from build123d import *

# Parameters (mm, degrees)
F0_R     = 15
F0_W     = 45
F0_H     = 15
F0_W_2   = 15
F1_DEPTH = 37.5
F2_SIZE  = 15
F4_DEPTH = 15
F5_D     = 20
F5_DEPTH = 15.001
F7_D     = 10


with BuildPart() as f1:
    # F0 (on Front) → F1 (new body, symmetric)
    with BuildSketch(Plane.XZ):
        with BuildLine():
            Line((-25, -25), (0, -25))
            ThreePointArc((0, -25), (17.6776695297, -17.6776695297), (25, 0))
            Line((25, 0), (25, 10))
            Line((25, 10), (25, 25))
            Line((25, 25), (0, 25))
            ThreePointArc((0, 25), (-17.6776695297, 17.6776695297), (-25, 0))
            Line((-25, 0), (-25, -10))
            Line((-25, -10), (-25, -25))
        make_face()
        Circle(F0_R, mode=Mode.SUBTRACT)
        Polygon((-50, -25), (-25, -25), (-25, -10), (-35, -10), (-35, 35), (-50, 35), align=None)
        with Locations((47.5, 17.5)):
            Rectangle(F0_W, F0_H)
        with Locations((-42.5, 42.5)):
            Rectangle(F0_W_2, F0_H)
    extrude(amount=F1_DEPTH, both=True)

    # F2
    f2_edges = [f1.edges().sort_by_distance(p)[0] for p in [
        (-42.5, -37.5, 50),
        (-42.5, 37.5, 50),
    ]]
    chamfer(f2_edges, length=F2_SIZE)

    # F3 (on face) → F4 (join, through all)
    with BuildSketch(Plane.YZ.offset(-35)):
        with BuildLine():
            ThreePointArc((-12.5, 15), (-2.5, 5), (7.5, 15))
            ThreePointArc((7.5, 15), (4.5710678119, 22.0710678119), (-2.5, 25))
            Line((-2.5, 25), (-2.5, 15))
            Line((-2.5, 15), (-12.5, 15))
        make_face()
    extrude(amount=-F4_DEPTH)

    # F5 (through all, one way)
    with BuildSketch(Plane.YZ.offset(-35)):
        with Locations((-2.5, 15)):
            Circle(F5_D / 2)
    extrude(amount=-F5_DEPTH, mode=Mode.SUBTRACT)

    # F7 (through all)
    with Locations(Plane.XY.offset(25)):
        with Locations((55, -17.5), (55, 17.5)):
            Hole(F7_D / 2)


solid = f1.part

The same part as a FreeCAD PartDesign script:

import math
import FreeCAD as App
import Part
import Sketcher


def edges_at(feature, points):
    """Names of the edges that pass closest to the given points."""
    edges = feature.Shape.Edges
    near = lambda p: min(range(len(edges)), key=lambda i: edges[i].distToShape(Part.Vertex(*p))[0])
    return sorted({f"Edge{near(p) + 1}" for p in points})

doc = App.newDocument("Part")
body = doc.addObject("PartDesign::Body", "Body")

# Sketch on XZ plane
sketch1 = body.newObject("Sketcher::SketchObject", "Sketch")
sketch1.AttachmentSupport = (doc.getObject("XZ_Plane"), [""])
sketch1.MapMode = "FlatFace"
sketch1.addGeometry([
    Part.ArcOfCircle(Part.Circle(App.Vector(0, 0, 0), App.Vector(0, 0, 1), 25), math.radians(-90), math.radians(0)),  # 0
    Part.LineSegment(App.Vector(25, 0, 0), App.Vector(25, 10, 0)),  # 1
    Part.LineSegment(App.Vector(25, 10, 0), App.Vector(70, 10, 0)),  # 2
    Part.LineSegment(App.Vector(70, 10, 0), App.Vector(70, 25, 0)),  # 3
    Part.LineSegment(App.Vector(70, 25, 0), App.Vector(0, 25, 0)),  # 4
    Part.ArcOfCircle(Part.Circle(App.Vector(0, 0, 0), App.Vector(0, 0, 1), 25), math.radians(90), math.radians(180)),  # 5
    Part.LineSegment(App.Vector(-25, 0, 0), App.Vector(-25, -10, 0)),  # 6
    Part.LineSegment(App.Vector(-25, -10, 0), App.Vector(-35, -10, 0)),  # 7
    Part.LineSegment(App.Vector(-35, -10, 0), App.Vector(-35, 50, 0)),  # 8
    Part.LineSegment(App.Vector(-35, 50, 0), App.Vector(-50, 50, 0)),  # 9
    Part.LineSegment(App.Vector(-50, 50, 0), App.Vector(-50, -25, 0)),  # 10
    Part.LineSegment(App.Vector(-50, -25, 0), App.Vector(0, -25, 0)),  # 11
    Part.Circle(App.Vector(0, 0, 0), App.Vector(0, 0, 1), 15),  # 12
], False)
sketch1.addConstraint([
    Sketcher.Constraint("Tangent", 0, 2, 1, 1),
    Sketcher.Constraint("Coincident", 1, 2, 2, 1),
    Sketcher.Constraint("Coincident", 2, 2, 3, 1),
    Sketcher.Constraint("Coincident", 3, 2, 4, 1),
    Sketcher.Constraint("Tangent", 4, 2, 5, 1),
    Sketcher.Constraint("Tangent", 5, 2, 6, 1),
    Sketcher.Constraint("Coincident", 6, 2, 7, 1),
    Sketcher.Constraint("Coincident", 7, 2, 8, 1),
    Sketcher.Constraint("Coincident", 8, 2, 9, 1),
    Sketcher.Constraint("Coincident", 9, 2, 10, 1),
    Sketcher.Constraint("Coincident", 10, 2, 11, 1),
    Sketcher.Constraint("Tangent", 11, 2, 0, 1),
    Sketcher.Constraint("Vertical", 1),
    Sketcher.Constraint("Horizontal", 2),
    Sketcher.Constraint("Vertical", 3),
    Sketcher.Constraint("Horizontal", 4),
    Sketcher.Constraint("Vertical", 6),
    Sketcher.Constraint("Horizontal", 7),
    Sketcher.Constraint("Vertical", 8),
    Sketcher.Constraint("Horizontal", 9),
    Sketcher.Constraint("Vertical", 10),
    Sketcher.Constraint("Horizontal", 11),
    Sketcher.Constraint("Coincident", 0, 3, -1, 1),
    Sketcher.Constraint("Coincident", 5, 3, -1, 1),
    Sketcher.Constraint("Coincident", 12, 3, -1, 1),
    Sketcher.Constraint("Equal", 0, 5),
    Sketcher.Constraint("Equal", 7, 1),
    Sketcher.Constraint("Equal", 9, 3),
    Sketcher.Constraint("Equal", 1, 6),
    Sketcher.Constraint("Diameter", 12, 30.0),
    Sketcher.Constraint("Radius", 0, 25.0),
    Sketcher.Constraint("DistanceX", 2, 1, 2, 2, 45.0),
    Sketcher.Constraint("DistanceX", 7, 2, 7, 1, 10.0),
    Sketcher.Constraint("DistanceY", 8, 1, 8, 2, 60.0),
])
pad1 = body.newObject("PartDesign::Pad", "Pad")
pad1.Profile = sketch1
pad1.Length = 75
pad1.Midplane = True
doc.recompute()

chamfer = body.newObject("PartDesign::Chamfer", "Chamfer")
chamfer.Base = (pad1, edges_at(pad1, [(-42.5, -37.5, 50), (-42.5, 37.5, 50)]))
chamfer.Size = 15

# Sketch on YZ plane
sketch2 = body.newObject("Sketcher::SketchObject", "Sketch001")
sketch2.AttachmentSupport = (doc.getObject("YZ_Plane"), [""])
sketch2.MapMode = "FlatFace"
sketch2.AttachmentOffset = App.Placement(App.Vector(0, 0, -35), App.Rotation())
sketch2.addGeometry([
    Part.ArcOfCircle(Part.Circle(App.Vector(-2.5, 15, 0), App.Vector(0, 0, 1), 10), math.radians(180), math.radians(360)),
    Part.ArcOfCircle(Part.Circle(App.Vector(-2.5, 15, 0), App.Vector(0, 0, 1), 10), math.radians(0), math.radians(90)),
    Part.LineSegment(App.Vector(-2.5, 25, 0), App.Vector(-2.5, 15, 0)),
    Part.LineSegment(App.Vector(-2.5, 15, 0), App.Vector(-12.5, 15, 0)),
], False)
sketch2.addConstraint([
    Sketcher.Constraint("Tangent", 0, 2, 1, 1),
    Sketcher.Constraint("Coincident", 1, 2, 2, 1),
    Sketcher.Constraint("Coincident", 2, 2, 3, 1),
    Sketcher.Constraint("Coincident", 3, 2, 0, 1),
    Sketcher.Constraint("Vertical", 2),
    Sketcher.Constraint("Horizontal", 3),
    Sketcher.Constraint("Coincident", 2, 2, 0, 3),
    Sketcher.Constraint("Equal", 0, 1),
    Sketcher.Constraint("Horizontal", 1, 3, 0, 2),
    Sketcher.Constraint("Radius", 0, 10.0),
    Sketcher.Constraint("DistanceY", -1, 1, 0, 3, 15.0),
    Sketcher.Constraint("DistanceX", 0, 3, -1, 1, 2.5),
])
pad2 = body.newObject("PartDesign::Pad", "Pad001")
pad2.Profile = sketch2
pad2.Type = "UpToLast"
pad2.Reversed = True

# Sketch on YZ plane
sketch3 = body.newObject("Sketcher::SketchObject", "Sketch002")
sketch3.AttachmentSupport = (doc.getObject("YZ_Plane"), [""])
sketch3.MapMode = "FlatFace"
sketch3.AttachmentOffset = App.Placement(App.Vector(0, 0, -35), App.Rotation())
sketch3.addGeometry(Part.Circle(App.Vector(-2.5, 15, 0), App.Vector(0, 0, 1), 10), False)
sketch3.addConstraint([
    Sketcher.Constraint("Diameter", 0, 20.0),
    Sketcher.Constraint("DistanceY", -1, 1, 0, 3, 15.0),
    Sketcher.Constraint("DistanceX", 0, 3, -1, 1, 2.5),
])
pocket1 = body.newObject("PartDesign::Pocket", "Pocket")
pocket1.Profile = sketch3
pocket1.Type = "ThroughAll"

# Sketch on XY plane
sketch4 = body.newObject("Sketcher::SketchObject", "Sketch003")
sketch4.AttachmentSupport = (doc.getObject("XY_Plane"), [""])
sketch4.MapMode = "FlatFace"
sketch4.AttachmentOffset = App.Placement(App.Vector(0, 0, 25), App.Rotation())
sketch4.addGeometry([
    Part.Circle(App.Vector(55, -17.5, 0), App.Vector(0, 0, 1), 5),
    Part.Circle(App.Vector(55, 17.5, 0), App.Vector(0, 0, 1), 5),
], False)
sketch4.addConstraint([
    Sketcher.Constraint("Equal", 0, 1),
    Sketcher.Constraint("Symmetric", 0, 3, 1, 3, -1),
    Sketcher.Constraint("Diameter", 0, 10.0),
    Sketcher.Constraint("DistanceX", -1, 1, 0, 3, 55.0),
    Sketcher.Constraint("DistanceY", 0, 3, 1, 3, 35.0),
])
doc.recompute()
hole = body.newObject("PartDesign::Hole", "Hole")
hole.Profile = sketch4
hole.ThreadType = "None"
hole.Diameter = 10
hole.DepthType = "ThroughAll"

doc.recompute()
